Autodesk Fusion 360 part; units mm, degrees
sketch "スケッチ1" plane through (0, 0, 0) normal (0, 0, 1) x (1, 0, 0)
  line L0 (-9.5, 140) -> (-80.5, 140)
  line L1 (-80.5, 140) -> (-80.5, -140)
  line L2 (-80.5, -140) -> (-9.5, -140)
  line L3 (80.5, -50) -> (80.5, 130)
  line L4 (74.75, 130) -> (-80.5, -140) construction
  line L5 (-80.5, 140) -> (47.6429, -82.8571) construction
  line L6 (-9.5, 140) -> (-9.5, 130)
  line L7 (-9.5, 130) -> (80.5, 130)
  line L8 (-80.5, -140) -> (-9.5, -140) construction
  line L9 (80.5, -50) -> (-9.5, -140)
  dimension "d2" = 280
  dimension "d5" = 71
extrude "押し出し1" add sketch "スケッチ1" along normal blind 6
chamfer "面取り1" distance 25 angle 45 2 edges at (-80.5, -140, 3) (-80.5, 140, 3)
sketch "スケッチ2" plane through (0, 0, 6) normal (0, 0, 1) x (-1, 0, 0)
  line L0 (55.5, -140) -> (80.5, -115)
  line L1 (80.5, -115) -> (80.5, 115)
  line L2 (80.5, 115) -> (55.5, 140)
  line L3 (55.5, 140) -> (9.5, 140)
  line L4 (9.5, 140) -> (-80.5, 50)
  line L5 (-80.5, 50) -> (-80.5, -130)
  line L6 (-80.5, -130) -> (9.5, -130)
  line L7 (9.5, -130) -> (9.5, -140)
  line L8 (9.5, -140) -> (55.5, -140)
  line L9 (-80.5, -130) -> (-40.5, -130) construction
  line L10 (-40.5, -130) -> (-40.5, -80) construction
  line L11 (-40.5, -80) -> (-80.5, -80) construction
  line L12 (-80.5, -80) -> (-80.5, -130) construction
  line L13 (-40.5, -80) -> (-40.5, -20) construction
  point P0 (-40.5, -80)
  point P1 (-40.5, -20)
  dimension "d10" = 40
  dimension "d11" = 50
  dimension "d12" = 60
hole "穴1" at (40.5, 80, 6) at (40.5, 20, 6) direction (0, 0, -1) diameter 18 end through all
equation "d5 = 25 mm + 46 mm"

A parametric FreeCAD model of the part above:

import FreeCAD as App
import Part
import Sketcher
Q = App.Units.Quantity


def edges_at(feature, points):
    """Names of the edges that pass closest to the given points."""
    edges = feature.Shape.Edges
    near = lambda p: min(range(len(edges)), key=lambda i: edges[i].distToShape(Part.Vertex(*p))[0])
    return sorted({f"Edge{near(p) + 1}" for p in points})

doc = App.newDocument("Part")
body = doc.addObject("PartDesign::Body", "Body")

# Sketch on XY plane
sketch1 = doc.addObject("Sketcher::SketchObject", "Sketch")
body.addObject(sketch1)
sketch1.AttachmentSupport = (doc.XY_Plane, [""])
sketch1.MapMode = "FlatFace"
sketch1.addGeometry([
    Part.LineSegment(App.Vector(-10, 130, 0), App.Vector(-10, 140, 0)),  # 0
    Part.LineSegment(App.Vector(-10, 140, 0), App.Vector(-80, 140, 0)),  # 1
    Part.LineSegment(App.Vector(-80, 140, 0), App.Vector(-80, -140, 0)),  # 2
    Part.LineSegment(App.Vector(-80, -140, 0), App.Vector(-10, -140, 0)),  # 3
    Part.LineSegment(App.Vector(-10, -140, 0), App.Vector(80, -50, 0)),  # 4
    Part.LineSegment(App.Vector(80, -50, 0), App.Vector(80, 130, 0)),  # 5
    Part.LineSegment(App.Vector(80, 130, 0), App.Vector(-10, 130, 0)),  # 6
], False)
sketch1.addConstraint([
    Sketcher.Constraint("Coincident", 0, 2, 1, 1),
    Sketcher.Constraint("Coincident", 1, 2, 2, 1),
    Sketcher.Constraint("Coincident", 2, 2, 3, 1),
    Sketcher.Constraint("Coincident", 3, 2, 4, 1),
    Sketcher.Constraint("Coincident", 4, 2, 5, 1),
    Sketcher.Constraint("Coincident", 5, 2, 6, 1),
    Sketcher.Constraint("Coincident", 6, 2, 0, 1),
    Sketcher.Constraint("Vertical", 0),
    Sketcher.Constraint("Horizontal", 1),
    Sketcher.Constraint("Vertical", 2),
    Sketcher.Constraint("Horizontal", 3),
    Sketcher.Constraint("Vertical", 5),
    Sketcher.Constraint("Horizontal", 6),
    Sketcher.Constraint("Symmetric", 0, 2, 3, 2, -1),
    Sketcher.Constraint("DistanceX", 1, 2, 1, 1, Q("71 mm")),
    Sketcher.Constraint("DistanceY", 2, 2, 2, 1, Q("280 mm")),
    Sketcher.Constraint("DistanceX", 6, 2, 6, 1, Q("90 mm")),
    Sketcher.Constraint("DistanceY", 0, 1, 0, 2, Q("10 mm")),
    Sketcher.Constraint("DistanceY", 5, 1, 5, 2, Q("180 mm")),
    Sketcher.Constraint("DistanceX", 0, 2, -1, 1, Q("9.5 mm")),
])
pad1 = doc.addObject("PartDesign::Pad", "Pad")
body.addObject(pad1)
pad1.Profile = sketch1
pad1.Length = 6
doc.recompute()

chamfer = doc.addObject("PartDesign::Chamfer", "Chamfer")
body.addObject(chamfer)
chamfer.Base = (pad1, edges_at(pad1, [(-80.5, -140, 3), (-80.5, 140, 3)]))
chamfer.Size = 25

# Sketch on XY plane
sketch2 = doc.addObject("Sketcher::SketchObject", "Sketch001")
body.addObject(sketch2)
sketch2.AttachmentSupport = (doc.XY_Plane, [""])
sketch2.MapMode = "FlatFace"
sketch2.AttachmentOffset = App.Placement(App.Vector(0, 0, 6), App.Rotation())
sketch2.addGeometry([
    Part.Circle(App.Vector(40, 80, 0), App.Vector(0, 0, 1), 9),
    Part.Circle(App.Vector(40, 20, 0), App.Vector(0, 0, 1), 9),
], False)
sketch2.addConstraint([
    Sketcher.Constraint("Equal", 0, 1),
    Sketcher.Constraint("Vertical", 0, 3, 1, 3),
    Sketcher.Constraint("Diameter", 0, Q("18 mm")),
    Sketcher.Constraint("DistanceY", -1, 1, 0, 3, Q("80 mm")),
    Sketcher.Constraint("DistanceY", -1, 1, 1, 3, Q("20 mm")),
    Sketcher.Constraint("DistanceX", -1, 1, 0, 3, Q("40.5 mm")),
])
doc.recompute()
hole = doc.addObject("PartDesign::Hole", "Hole")
body.addObject(hole)
hole.Profile = sketch2
hole.ThreadType = "None"
hole.Diameter = 18
hole.DepthType = "ThroughAll"

doc.recompute()
